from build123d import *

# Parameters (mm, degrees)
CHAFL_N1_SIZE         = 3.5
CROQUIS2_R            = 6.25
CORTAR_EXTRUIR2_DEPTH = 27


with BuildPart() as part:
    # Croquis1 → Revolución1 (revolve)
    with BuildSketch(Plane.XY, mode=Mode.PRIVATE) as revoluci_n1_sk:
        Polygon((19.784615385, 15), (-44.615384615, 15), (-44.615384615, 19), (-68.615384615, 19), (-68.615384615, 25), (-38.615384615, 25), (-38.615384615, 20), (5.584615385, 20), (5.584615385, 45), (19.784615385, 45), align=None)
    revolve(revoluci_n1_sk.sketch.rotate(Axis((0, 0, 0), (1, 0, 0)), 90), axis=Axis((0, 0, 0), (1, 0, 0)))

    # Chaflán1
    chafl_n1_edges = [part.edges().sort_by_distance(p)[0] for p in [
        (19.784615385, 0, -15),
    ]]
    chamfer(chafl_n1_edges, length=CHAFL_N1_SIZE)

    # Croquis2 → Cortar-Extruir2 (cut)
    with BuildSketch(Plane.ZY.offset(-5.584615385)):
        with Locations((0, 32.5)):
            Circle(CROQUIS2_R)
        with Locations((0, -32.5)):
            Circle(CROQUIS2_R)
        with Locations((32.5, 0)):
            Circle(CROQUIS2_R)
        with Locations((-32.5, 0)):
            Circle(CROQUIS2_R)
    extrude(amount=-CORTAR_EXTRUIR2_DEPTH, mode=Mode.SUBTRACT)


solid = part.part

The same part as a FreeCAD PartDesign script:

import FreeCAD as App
import Part
import Sketcher


def edges_at(feature, points):
    """Names of the edges that pass closest to the given points."""
    edges = feature.Shape.Edges
    near = lambda p: min(range(len(edges)), key=lambda i: edges[i].distToShape(Part.Vertex(*p))[0])
    return sorted({f"Edge{near(p) + 1}" for p in points})

doc = App.newDocument("Part")
params = doc.addObject("Spreadsheet::Sheet", "Params")
for row, (alias, value) in enumerate([
    ("sketch1_width", "30 mm"),
    ("sketch1_width2", "24 mm"),
    ("sketch1_height", "25 mm"),
    ("sketch1_height2", "5 mm"),
    ("sketch1_height3", "6 mm"),
    ("revolution_angle", "360 deg"),
    ("chamfer_size", "3.5 mm"),
    ("sketch2_diameter", "12.5 mm"),
    ("pocket1_length", "27 mm"),
], start=1):
    params.set(f"A{row}", alias)
    params.set(f"B{row}", "=" + value)
    params.setAlias(f"B{row}", alias)

body = doc.addObject("PartDesign::Body", "Body")

sketch1 = body.newObject("Sketcher::SketchObject", "Sketch")
sketch1.AttachmentSupport = (doc.getObject("XY_Plane"), [""])
sketch1.MapMode = "FlatFace"
sketch1.addGeometry([
    Part.LineSegment(App.Vector(-44.615385, 15, 0), App.Vector(19.784615, 15, 0)),
    Part.LineSegment(App.Vector(19.784615, 15, 0), App.Vector(19.784615, 45, 0)),
    Part.LineSegment(App.Vector(19.784615, 45, 0), App.Vector(5.584615, 45, 0)),
    Part.LineSegment(App.Vector(5.584615, 45, 0), App.Vector(5.584615, 20, 0)),
    Part.LineSegment(App.Vector(5.584615, 20, 0), App.Vector(-38.615385, 20, 0)),
    Part.LineSegment(App.Vector(-38.615385, 20, 0), App.Vector(-38.615385, 25, 0)),
    Part.LineSegment(App.Vector(-38.615385, 25, 0), App.Vector(-68.615385, 25, 0)),
    Part.LineSegment(App.Vector(-68.615385, 25, 0), App.Vector(-68.615385, 19, 0)),
    Part.LineSegment(App.Vector(-68.615385, 19, 0), App.Vector(-44.615385, 19, 0)),
    Part.LineSegment(App.Vector(-44.615385, 19, 0), App.Vector(-44.615385, 15, 0)),
], False)
sketch1.addConstraint([
    Sketcher.Constraint("Coincident", 0, 2, 1, 1),
    Sketcher.Constraint("Coincident", 1, 2, 2, 1),
    Sketcher.Constraint("Coincident", 2, 2, 3, 1),
    Sketcher.Constraint("Coincident", 3, 2, 4, 1),
    Sketcher.Constraint("Coincident", 4, 2, 5, 1),
    Sketcher.Constraint("Coincident", 5, 2, 6, 1),
    Sketcher.Constraint("Coincident", 6, 2, 7, 1),
    Sketcher.Constraint("Coincident", 7, 2, 8, 1),
    Sketcher.Constraint("Coincident", 8, 2, 9, 1),
    Sketcher.Constraint("Coincident", 9, 2, 0, 1),
    Sketcher.Constraint("Horizontal", 0),
    Sketcher.Constraint("Vertical", 1),
    Sketcher.Constraint("Horizontal", 2),
    Sketcher.Constraint("Vertical", 3),
    Sketcher.Constraint("Horizontal", 4),
    Sketcher.Constraint("Vertical", 5),
    Sketcher.Constraint("Horizontal", 6),
    Sketcher.Constraint("Vertical", 7),
    Sketcher.Constraint("Horizontal", 8),
    Sketcher.Constraint("Vertical", 9),
    Sketcher.Constraint("Equal", 6, 1),
    Sketcher.Constraint("DistanceX", 6, 2, 6, 1, 30.0),
    Sketcher.Constraint("DistanceX", 8, 1, 8, 2, 24.0),
    Sketcher.Constraint("DistanceY", 3, 2, 3, 1, 25.0),
    Sketcher.Constraint("DistanceY", 5, 1, 5, 2, 5.0),
    Sketcher.Constraint("DistanceY", 7, 2, 7, 1, 6.0),
    Sketcher.Constraint("DistanceX", 0, 1, 0, 2, 64.4),
    Sketcher.Constraint("DistanceX", 2, 2, 2, 1, 14.2),
    Sketcher.Constraint("DistanceY", -1, 1, 0, 2, 15.0),
    Sketcher.Constraint("DistanceX", -1, 1, 0, 2, 19.784615),
])
sketch1.setExpression("Constraints[21]", "Params.sketch1_width")
sketch1.setExpression("Constraints[22]", "Params.sketch1_width2")
sketch1.setExpression("Constraints[23]", "Params.sketch1_height")
sketch1.setExpression("Constraints[24]", "Params.sketch1_height2")
sketch1.setExpression("Constraints[25]", "Params.sketch1_height3")
revolution = body.newObject("PartDesign::Revolution", "Revolution")
revolution.Profile = sketch1
revolution.ReferenceAxis = (sketch1, ["H_Axis"])
revolution.setExpression("Angle", "Params.revolution_angle")
doc.recompute()

chamfer = body.newObject("PartDesign::Chamfer", "Chamfer")
chamfer.Base = (revolution, edges_at(revolution, [(19.785, 0, -15)]))
chamfer.setExpression("Size", "Params.chamfer_size")

sketch2 = body.newObject("Sketcher::SketchObject", "Sketch001")
sketch2.AttachmentSupport = (doc.getObject("YZ_Plane"), [""])
sketch2.MapMode = "FlatFace"
sketch2.AttachmentOffset = App.Placement(App.Vector(0, 0, 5.584615), App.Rotation())
sketch2.addGeometry([
    Part.Circle(App.Vector(32.5, 0, 0), App.Vector(0, 0, 1), 6.25),
    Part.Circle(App.Vector(-32.5, 0, 0), App.Vector(0, 0, 1), 6.25),
    Part.Circle(App.Vector(0, 32.5, 0), App.Vector(0, 0, 1), 6.25),
    Part.Circle(App.Vector(0, -32.5, 0), App.Vector(0, 0, 1), 6.25),
], False)
sketch2.addConstraint([
    Sketcher.Constraint("Equal", 0, 1),
    Sketcher.Constraint("Equal", 1, 2),
    Sketcher.Constraint("Equal", 2, 3),
    Sketcher.Constraint("Symmetric", 0, 3, 1, 3, -1, 1),
    Sketcher.Constraint("Symmetric", 2, 3, 3, 3, -1, 1),
    Sketcher.Constraint("PointOnObject", 0, 3, -1),
    Sketcher.Constraint("PointOnObject", 2, 3, -2),
    Sketcher.Constraint("Diameter", 0, 12.5),
    Sketcher.Constraint("DistanceX", 1, 3, 0, 3, 65.0),
    Sketcher.Constraint("DistanceY", 3, 3, 2, 3, 65.0),
])
sketch2.setExpression("Constraints[7]", "Params.sketch2_diameter")
pocket1 = body.newObject("PartDesign::Pocket", "Pocket")
pocket1.Profile = sketch2
pocket1.setExpression("Length", "Params.pocket1_length")
pocket1.Reversed = True

doc.recompute()
